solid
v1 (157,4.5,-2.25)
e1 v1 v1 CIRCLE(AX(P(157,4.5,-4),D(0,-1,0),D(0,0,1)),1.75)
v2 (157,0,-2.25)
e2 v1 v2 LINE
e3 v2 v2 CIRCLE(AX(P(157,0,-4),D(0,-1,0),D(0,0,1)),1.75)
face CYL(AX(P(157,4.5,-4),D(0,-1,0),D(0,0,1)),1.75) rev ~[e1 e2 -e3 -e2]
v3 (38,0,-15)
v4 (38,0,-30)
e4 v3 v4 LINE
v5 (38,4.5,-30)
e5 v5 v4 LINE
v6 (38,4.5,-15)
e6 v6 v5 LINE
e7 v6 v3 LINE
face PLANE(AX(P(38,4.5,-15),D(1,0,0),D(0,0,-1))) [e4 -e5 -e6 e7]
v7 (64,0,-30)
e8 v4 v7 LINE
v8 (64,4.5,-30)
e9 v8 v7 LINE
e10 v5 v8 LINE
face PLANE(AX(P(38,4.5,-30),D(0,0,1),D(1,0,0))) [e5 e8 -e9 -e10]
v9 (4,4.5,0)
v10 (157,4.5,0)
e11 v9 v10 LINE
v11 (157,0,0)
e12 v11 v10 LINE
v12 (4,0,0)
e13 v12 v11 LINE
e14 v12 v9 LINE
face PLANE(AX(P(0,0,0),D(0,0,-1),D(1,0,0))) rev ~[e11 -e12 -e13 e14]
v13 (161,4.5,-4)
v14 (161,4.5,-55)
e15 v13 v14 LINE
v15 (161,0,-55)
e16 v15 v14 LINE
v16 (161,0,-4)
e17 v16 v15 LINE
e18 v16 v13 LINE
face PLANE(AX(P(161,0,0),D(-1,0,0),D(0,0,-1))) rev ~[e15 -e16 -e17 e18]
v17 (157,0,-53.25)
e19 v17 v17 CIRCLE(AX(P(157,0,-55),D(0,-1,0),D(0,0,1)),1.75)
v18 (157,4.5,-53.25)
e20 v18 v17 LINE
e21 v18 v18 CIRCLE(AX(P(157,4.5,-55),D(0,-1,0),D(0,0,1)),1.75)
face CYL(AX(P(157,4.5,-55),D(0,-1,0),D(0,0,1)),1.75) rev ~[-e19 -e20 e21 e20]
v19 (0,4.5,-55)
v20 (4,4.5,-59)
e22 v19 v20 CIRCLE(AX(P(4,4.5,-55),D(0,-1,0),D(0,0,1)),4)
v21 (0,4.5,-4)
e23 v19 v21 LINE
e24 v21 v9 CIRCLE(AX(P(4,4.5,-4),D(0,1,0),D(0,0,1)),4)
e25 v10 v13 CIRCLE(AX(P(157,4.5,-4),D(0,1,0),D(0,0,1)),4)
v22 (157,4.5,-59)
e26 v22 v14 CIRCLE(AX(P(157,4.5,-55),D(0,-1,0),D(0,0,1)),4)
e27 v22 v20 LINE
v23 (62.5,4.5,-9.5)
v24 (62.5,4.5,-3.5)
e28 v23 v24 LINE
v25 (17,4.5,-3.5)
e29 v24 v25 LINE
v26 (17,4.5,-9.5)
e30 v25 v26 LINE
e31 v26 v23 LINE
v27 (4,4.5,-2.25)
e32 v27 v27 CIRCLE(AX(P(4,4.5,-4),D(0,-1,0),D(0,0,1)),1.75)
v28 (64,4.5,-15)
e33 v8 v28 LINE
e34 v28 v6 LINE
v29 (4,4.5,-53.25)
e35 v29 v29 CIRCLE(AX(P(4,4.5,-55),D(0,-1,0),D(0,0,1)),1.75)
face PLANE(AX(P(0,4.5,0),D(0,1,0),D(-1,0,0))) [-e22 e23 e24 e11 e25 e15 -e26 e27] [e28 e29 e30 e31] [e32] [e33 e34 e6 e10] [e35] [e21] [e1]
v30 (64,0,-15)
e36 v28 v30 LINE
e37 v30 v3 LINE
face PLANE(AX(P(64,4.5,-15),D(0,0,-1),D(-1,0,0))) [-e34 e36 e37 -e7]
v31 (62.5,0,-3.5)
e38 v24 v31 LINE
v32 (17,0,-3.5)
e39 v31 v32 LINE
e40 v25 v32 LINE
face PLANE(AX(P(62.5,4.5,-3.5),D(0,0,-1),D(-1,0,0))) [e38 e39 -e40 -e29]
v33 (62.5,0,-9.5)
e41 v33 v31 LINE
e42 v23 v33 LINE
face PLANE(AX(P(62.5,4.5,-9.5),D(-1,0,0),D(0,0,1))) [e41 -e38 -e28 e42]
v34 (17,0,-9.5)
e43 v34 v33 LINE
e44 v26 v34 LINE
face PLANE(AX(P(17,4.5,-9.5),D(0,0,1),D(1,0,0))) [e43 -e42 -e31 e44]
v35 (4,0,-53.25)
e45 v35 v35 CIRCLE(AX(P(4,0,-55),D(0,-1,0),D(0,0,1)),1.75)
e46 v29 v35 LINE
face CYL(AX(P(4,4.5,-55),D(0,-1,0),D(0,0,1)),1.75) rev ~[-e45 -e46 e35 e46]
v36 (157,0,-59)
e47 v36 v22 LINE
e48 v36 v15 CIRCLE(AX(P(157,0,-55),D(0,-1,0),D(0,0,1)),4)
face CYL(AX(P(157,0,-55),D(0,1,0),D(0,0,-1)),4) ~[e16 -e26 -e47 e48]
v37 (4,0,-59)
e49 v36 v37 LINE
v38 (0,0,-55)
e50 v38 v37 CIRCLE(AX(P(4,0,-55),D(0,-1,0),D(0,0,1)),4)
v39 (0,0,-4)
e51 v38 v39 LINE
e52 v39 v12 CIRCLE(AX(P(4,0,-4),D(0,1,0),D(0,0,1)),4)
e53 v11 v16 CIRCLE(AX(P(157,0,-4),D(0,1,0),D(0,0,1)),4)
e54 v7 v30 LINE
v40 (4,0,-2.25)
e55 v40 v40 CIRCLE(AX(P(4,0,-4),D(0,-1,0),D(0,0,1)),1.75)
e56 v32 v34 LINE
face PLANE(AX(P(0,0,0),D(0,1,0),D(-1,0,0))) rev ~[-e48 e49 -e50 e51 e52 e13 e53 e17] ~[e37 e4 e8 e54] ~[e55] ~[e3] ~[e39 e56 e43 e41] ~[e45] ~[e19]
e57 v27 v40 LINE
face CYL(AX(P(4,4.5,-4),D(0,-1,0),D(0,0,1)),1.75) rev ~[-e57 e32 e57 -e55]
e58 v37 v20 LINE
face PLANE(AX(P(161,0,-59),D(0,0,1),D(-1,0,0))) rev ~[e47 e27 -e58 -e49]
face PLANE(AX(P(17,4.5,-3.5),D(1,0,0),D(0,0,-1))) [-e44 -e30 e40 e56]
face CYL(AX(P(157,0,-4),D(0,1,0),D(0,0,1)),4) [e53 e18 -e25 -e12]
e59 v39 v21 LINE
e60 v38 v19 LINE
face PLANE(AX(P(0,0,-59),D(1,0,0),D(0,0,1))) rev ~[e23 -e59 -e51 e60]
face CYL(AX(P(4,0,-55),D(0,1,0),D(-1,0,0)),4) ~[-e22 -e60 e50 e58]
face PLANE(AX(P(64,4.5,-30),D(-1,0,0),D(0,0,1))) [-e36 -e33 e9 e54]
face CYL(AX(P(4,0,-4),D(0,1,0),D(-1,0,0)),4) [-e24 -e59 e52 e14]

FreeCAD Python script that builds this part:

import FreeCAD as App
import Part
import Sketcher

V = App.Vector
Q = App.Units.Quantity


def edges_at(feature, points):
    """Names of the edges that pass closest to the given points."""
    edges = feature.Shape.Edges
    near = lambda p: min(range(len(edges)), key=lambda i: edges[i].distToShape(Part.Vertex(*p))[0])
    return sorted({f"Edge{near(p) + 1}" for p in points})

doc = App.newDocument("Part")
body = doc.addObject("PartDesign::Body", "Body")

# Sketch on XZ plane
sketch1 = body.newObject("Sketcher::SketchObject", "Sketch")
sketch1.AttachmentSupport = (doc.getObject("XZ_Plane"), [""])
sketch1.MapMode = "FlatFace"
sketch1.addGeometry(Part.LineSegment(V(0, -59, 0), V(0, 0, 0)), False)
sketch1.addGeometry(Part.LineSegment(V(0, 0, 0), V(161, 0, 0)), False)
sketch1.addGeometry(Part.LineSegment(V(161, 0, 0), V(161, -59, 0)), False)
sketch1.addGeometry(Part.LineSegment(V(161, -59, 0), V(0, -59, 0)), False)
sketch1.addConstraint(Sketcher.Constraint("Coincident", 0, 2, 1, 1))
sketch1.addConstraint(Sketcher.Constraint("Coincident", 1, 2, 2, 1))
sketch1.addConstraint(Sketcher.Constraint("Coincident", 2, 2, 3, 1))
sketch1.addConstraint(Sketcher.Constraint("Coincident", 3, 2, 0, 1))
sketch1.addConstraint(Sketcher.Constraint("Vertical", 0))
sketch1.addConstraint(Sketcher.Constraint("Horizontal", 1))
sketch1.addConstraint(Sketcher.Constraint("Vertical", 2))
sketch1.addConstraint(Sketcher.Constraint("Horizontal", 3))
sketch1.addConstraint(Sketcher.Constraint("Coincident", 0, 2, -1, 1))
sketch1.addConstraint(Sketcher.Constraint("DistanceX", 1, 1, 1, 2, Q("161 mm")))
sketch1.addConstraint(Sketcher.Constraint("DistanceY", 0, 1, 0, 2, Q("59 mm")))
pad1 = body.newObject("PartDesign::Pad", "Pad")
pad1.Profile = sketch1
pad1.Length = 4.5
pad1.Reversed = True

# Sketch on XZ plane
sketch2 = body.newObject("Sketcher::SketchObject", "Sketch001")
sketch2.AttachmentSupport = (doc.getObject("XZ_Plane"), [""])
sketch2.MapMode = "FlatFace"
sketch2.AttachmentOffset = App.Placement(V(0, 0, -4.5), App.Rotation())
sketch2.addGeometry(Part.LineSegment(V(64, -30, 0), V(38, -30, 0)), False)
sketch2.addGeometry(Part.LineSegment(V(38, -30, 0), V(38, -15, 0)), False)
sketch2.addGeometry(Part.LineSegment(V(38, -15, 0), V(64, -15, 0)), False)
sketch2.addGeometry(Part.LineSegment(V(64, -15, 0), V(64, -30, 0)), False)
sketch2.addGeometry(Part.LineSegment(V(62, -10, 0), V(17, -10, 0)), False)
sketch2.addGeometry(Part.LineSegment(V(17, -10, 0), V(17, -4, 0)), False)
sketch2.addGeometry(Part.LineSegment(V(17, -4, 0), V(62, -4, 0)), False)
sketch2.addGeometry(Part.LineSegment(V(62, -4, 0), V(62, -10, 0)), False)
sketch2.addConstraint(Sketcher.Constraint("Coincident", 0, 2, 1, 1))
sketch2.addConstraint(Sketcher.Constraint("Coincident", 1, 2, 2, 1))
sketch2.addConstraint(Sketcher.Constraint("Coincident", 2, 2, 3, 1))
sketch2.addConstraint(Sketcher.Constraint("Coincident", 3, 2, 0, 1))
sketch2.addConstraint(Sketcher.Constraint("Coincident", 4, 2, 5, 1))
sketch2.addConstraint(Sketcher.Constraint("Coincident", 5, 2, 6, 1))
sketch2.addConstraint(Sketcher.Constraint("Coincident", 6, 2, 7, 1))
sketch2.addConstraint(Sketcher.Constraint("Coincident", 7, 2, 4, 1))
sketch2.addConstraint(Sketcher.Constraint("Horizontal", 0))
sketch2.addConstraint(Sketcher.Constraint("Vertical", 1))
sketch2.addConstraint(Sketcher.Constraint("Horizontal", 2))
sketch2.addConstraint(Sketcher.Constraint("Vertical", 3))
sketch2.addConstraint(Sketcher.Constraint("Horizontal", 4))
sketch2.addConstraint(Sketcher.Constraint("Vertical", 5))
sketch2.addConstraint(Sketcher.Constraint("Horizontal", 6))
sketch2.addConstraint(Sketcher.Constraint("Vertical", 7))
sketch2.addConstraint(Sketcher.Constraint("DistanceX", 0, 2, 0, 1, Q("26 mm")))
sketch2.addConstraint(Sketcher.Constraint("DistanceY", 1, 1, 1, 2, Q("15 mm")))
sketch2.addConstraint(Sketcher.Constraint("DistanceY", 5, 1, 5, 2, Q("6 mm")))
sketch2.addConstraint(Sketcher.Constraint("DistanceX", 4, 2, 4, 1, Q("45.5 mm")))
sketch2.addConstraint(Sketcher.Constraint("DistanceX", -1, 1, 0, 2, Q("38 mm")))
sketch2.addConstraint(Sketcher.Constraint("DistanceY", 1, 2, -1, 1, Q("15 mm")))
sketch2.addConstraint(Sketcher.Constraint("DistanceX", -1, 1, 4, 2, Q("17 mm")))
sketch2.addConstraint(Sketcher.Constraint("DistanceY", 5, 2, -1, 1, Q("3.5 mm")))
pocket1 = body.newObject("PartDesign::Pocket", "Pocket")
pocket1.Profile = sketch2
pocket1.Type = "ThroughAll"
pocket1.Reversed = True

# Sketch on XZ plane
sketch3 = body.newObject("Sketcher::SketchObject", "Sketch002")
sketch3.AttachmentSupport = (doc.getObject("XZ_Plane"), [""])
sketch3.MapMode = "FlatFace"
sketch3.AttachmentOffset = App.Placement(V(0, 0, -4.5), App.Rotation())
sketch3.addGeometry(Part.Circle(V(4, -55, 0), V(0, 0, 1), 1.8), False)
sketch3.addGeometry(Part.Circle(V(4, -4, 0), V(0, 0, 1), 1.8), False)
sketch3.addGeometry(Part.Circle(V(157, -55, 0), V(0, 0, 1), 1.8), False)
sketch3.addGeometry(Part.Circle(V(157, -4, 0), V(0, 0, 1), 1.8), False)
sketch3.addConstraint(Sketcher.Constraint("Equal", 0, 1))
sketch3.addConstraint(Sketcher.Constraint("Equal", 1, 2))
sketch3.addConstraint(Sketcher.Constraint("Equal", 2, 3))
sketch3.addConstraint(Sketcher.Constraint("Horizontal", 0, 3, 2, 3))
sketch3.addConstraint(Sketcher.Constraint("Horizontal", 1, 3, 3, 3))
sketch3.addConstraint(Sketcher.Constraint("Vertical", 0, 3, 1, 3))
sketch3.addConstraint(Sketcher.Constraint("Vertical", 2, 3, 3, 3))
sketch3.addConstraint(Sketcher.Constraint("Diameter", 0, Q("3.5 mm")))
sketch3.addConstraint(Sketcher.Constraint("DistanceX", -1, 1, 0, 3, Q("4 mm")))
sketch3.addConstraint(Sketcher.Constraint("DistanceY", 0, 3, -1, 1, Q("55 mm")))
sketch3.addConstraint(Sketcher.Constraint("DistanceY", 1, 3, -1, 1, Q("4 mm")))
sketch3.addConstraint(Sketcher.Constraint("DistanceX", -1, 1, 2, 3, Q("157 mm")))
doc.recompute()
hole = body.newObject("PartDesign::Hole", "Hole")
hole.Profile = sketch3
hole.ThreadType = "None"
hole.Diameter = 3.5
hole.DepthType = "ThroughAll"
hole.Reversed = True
doc.recompute()

fillet = body.newObject("PartDesign::Fillet", "Fillet")
fillet.Base = (hole, edges_at(hole, [
    (0, 2.25, -59),
    (0, 2.25, 0),
    (161, 2.25, -59),
    (161, 2.25, 0),
]))
fillet.Radius = 4

doc.recompute()
